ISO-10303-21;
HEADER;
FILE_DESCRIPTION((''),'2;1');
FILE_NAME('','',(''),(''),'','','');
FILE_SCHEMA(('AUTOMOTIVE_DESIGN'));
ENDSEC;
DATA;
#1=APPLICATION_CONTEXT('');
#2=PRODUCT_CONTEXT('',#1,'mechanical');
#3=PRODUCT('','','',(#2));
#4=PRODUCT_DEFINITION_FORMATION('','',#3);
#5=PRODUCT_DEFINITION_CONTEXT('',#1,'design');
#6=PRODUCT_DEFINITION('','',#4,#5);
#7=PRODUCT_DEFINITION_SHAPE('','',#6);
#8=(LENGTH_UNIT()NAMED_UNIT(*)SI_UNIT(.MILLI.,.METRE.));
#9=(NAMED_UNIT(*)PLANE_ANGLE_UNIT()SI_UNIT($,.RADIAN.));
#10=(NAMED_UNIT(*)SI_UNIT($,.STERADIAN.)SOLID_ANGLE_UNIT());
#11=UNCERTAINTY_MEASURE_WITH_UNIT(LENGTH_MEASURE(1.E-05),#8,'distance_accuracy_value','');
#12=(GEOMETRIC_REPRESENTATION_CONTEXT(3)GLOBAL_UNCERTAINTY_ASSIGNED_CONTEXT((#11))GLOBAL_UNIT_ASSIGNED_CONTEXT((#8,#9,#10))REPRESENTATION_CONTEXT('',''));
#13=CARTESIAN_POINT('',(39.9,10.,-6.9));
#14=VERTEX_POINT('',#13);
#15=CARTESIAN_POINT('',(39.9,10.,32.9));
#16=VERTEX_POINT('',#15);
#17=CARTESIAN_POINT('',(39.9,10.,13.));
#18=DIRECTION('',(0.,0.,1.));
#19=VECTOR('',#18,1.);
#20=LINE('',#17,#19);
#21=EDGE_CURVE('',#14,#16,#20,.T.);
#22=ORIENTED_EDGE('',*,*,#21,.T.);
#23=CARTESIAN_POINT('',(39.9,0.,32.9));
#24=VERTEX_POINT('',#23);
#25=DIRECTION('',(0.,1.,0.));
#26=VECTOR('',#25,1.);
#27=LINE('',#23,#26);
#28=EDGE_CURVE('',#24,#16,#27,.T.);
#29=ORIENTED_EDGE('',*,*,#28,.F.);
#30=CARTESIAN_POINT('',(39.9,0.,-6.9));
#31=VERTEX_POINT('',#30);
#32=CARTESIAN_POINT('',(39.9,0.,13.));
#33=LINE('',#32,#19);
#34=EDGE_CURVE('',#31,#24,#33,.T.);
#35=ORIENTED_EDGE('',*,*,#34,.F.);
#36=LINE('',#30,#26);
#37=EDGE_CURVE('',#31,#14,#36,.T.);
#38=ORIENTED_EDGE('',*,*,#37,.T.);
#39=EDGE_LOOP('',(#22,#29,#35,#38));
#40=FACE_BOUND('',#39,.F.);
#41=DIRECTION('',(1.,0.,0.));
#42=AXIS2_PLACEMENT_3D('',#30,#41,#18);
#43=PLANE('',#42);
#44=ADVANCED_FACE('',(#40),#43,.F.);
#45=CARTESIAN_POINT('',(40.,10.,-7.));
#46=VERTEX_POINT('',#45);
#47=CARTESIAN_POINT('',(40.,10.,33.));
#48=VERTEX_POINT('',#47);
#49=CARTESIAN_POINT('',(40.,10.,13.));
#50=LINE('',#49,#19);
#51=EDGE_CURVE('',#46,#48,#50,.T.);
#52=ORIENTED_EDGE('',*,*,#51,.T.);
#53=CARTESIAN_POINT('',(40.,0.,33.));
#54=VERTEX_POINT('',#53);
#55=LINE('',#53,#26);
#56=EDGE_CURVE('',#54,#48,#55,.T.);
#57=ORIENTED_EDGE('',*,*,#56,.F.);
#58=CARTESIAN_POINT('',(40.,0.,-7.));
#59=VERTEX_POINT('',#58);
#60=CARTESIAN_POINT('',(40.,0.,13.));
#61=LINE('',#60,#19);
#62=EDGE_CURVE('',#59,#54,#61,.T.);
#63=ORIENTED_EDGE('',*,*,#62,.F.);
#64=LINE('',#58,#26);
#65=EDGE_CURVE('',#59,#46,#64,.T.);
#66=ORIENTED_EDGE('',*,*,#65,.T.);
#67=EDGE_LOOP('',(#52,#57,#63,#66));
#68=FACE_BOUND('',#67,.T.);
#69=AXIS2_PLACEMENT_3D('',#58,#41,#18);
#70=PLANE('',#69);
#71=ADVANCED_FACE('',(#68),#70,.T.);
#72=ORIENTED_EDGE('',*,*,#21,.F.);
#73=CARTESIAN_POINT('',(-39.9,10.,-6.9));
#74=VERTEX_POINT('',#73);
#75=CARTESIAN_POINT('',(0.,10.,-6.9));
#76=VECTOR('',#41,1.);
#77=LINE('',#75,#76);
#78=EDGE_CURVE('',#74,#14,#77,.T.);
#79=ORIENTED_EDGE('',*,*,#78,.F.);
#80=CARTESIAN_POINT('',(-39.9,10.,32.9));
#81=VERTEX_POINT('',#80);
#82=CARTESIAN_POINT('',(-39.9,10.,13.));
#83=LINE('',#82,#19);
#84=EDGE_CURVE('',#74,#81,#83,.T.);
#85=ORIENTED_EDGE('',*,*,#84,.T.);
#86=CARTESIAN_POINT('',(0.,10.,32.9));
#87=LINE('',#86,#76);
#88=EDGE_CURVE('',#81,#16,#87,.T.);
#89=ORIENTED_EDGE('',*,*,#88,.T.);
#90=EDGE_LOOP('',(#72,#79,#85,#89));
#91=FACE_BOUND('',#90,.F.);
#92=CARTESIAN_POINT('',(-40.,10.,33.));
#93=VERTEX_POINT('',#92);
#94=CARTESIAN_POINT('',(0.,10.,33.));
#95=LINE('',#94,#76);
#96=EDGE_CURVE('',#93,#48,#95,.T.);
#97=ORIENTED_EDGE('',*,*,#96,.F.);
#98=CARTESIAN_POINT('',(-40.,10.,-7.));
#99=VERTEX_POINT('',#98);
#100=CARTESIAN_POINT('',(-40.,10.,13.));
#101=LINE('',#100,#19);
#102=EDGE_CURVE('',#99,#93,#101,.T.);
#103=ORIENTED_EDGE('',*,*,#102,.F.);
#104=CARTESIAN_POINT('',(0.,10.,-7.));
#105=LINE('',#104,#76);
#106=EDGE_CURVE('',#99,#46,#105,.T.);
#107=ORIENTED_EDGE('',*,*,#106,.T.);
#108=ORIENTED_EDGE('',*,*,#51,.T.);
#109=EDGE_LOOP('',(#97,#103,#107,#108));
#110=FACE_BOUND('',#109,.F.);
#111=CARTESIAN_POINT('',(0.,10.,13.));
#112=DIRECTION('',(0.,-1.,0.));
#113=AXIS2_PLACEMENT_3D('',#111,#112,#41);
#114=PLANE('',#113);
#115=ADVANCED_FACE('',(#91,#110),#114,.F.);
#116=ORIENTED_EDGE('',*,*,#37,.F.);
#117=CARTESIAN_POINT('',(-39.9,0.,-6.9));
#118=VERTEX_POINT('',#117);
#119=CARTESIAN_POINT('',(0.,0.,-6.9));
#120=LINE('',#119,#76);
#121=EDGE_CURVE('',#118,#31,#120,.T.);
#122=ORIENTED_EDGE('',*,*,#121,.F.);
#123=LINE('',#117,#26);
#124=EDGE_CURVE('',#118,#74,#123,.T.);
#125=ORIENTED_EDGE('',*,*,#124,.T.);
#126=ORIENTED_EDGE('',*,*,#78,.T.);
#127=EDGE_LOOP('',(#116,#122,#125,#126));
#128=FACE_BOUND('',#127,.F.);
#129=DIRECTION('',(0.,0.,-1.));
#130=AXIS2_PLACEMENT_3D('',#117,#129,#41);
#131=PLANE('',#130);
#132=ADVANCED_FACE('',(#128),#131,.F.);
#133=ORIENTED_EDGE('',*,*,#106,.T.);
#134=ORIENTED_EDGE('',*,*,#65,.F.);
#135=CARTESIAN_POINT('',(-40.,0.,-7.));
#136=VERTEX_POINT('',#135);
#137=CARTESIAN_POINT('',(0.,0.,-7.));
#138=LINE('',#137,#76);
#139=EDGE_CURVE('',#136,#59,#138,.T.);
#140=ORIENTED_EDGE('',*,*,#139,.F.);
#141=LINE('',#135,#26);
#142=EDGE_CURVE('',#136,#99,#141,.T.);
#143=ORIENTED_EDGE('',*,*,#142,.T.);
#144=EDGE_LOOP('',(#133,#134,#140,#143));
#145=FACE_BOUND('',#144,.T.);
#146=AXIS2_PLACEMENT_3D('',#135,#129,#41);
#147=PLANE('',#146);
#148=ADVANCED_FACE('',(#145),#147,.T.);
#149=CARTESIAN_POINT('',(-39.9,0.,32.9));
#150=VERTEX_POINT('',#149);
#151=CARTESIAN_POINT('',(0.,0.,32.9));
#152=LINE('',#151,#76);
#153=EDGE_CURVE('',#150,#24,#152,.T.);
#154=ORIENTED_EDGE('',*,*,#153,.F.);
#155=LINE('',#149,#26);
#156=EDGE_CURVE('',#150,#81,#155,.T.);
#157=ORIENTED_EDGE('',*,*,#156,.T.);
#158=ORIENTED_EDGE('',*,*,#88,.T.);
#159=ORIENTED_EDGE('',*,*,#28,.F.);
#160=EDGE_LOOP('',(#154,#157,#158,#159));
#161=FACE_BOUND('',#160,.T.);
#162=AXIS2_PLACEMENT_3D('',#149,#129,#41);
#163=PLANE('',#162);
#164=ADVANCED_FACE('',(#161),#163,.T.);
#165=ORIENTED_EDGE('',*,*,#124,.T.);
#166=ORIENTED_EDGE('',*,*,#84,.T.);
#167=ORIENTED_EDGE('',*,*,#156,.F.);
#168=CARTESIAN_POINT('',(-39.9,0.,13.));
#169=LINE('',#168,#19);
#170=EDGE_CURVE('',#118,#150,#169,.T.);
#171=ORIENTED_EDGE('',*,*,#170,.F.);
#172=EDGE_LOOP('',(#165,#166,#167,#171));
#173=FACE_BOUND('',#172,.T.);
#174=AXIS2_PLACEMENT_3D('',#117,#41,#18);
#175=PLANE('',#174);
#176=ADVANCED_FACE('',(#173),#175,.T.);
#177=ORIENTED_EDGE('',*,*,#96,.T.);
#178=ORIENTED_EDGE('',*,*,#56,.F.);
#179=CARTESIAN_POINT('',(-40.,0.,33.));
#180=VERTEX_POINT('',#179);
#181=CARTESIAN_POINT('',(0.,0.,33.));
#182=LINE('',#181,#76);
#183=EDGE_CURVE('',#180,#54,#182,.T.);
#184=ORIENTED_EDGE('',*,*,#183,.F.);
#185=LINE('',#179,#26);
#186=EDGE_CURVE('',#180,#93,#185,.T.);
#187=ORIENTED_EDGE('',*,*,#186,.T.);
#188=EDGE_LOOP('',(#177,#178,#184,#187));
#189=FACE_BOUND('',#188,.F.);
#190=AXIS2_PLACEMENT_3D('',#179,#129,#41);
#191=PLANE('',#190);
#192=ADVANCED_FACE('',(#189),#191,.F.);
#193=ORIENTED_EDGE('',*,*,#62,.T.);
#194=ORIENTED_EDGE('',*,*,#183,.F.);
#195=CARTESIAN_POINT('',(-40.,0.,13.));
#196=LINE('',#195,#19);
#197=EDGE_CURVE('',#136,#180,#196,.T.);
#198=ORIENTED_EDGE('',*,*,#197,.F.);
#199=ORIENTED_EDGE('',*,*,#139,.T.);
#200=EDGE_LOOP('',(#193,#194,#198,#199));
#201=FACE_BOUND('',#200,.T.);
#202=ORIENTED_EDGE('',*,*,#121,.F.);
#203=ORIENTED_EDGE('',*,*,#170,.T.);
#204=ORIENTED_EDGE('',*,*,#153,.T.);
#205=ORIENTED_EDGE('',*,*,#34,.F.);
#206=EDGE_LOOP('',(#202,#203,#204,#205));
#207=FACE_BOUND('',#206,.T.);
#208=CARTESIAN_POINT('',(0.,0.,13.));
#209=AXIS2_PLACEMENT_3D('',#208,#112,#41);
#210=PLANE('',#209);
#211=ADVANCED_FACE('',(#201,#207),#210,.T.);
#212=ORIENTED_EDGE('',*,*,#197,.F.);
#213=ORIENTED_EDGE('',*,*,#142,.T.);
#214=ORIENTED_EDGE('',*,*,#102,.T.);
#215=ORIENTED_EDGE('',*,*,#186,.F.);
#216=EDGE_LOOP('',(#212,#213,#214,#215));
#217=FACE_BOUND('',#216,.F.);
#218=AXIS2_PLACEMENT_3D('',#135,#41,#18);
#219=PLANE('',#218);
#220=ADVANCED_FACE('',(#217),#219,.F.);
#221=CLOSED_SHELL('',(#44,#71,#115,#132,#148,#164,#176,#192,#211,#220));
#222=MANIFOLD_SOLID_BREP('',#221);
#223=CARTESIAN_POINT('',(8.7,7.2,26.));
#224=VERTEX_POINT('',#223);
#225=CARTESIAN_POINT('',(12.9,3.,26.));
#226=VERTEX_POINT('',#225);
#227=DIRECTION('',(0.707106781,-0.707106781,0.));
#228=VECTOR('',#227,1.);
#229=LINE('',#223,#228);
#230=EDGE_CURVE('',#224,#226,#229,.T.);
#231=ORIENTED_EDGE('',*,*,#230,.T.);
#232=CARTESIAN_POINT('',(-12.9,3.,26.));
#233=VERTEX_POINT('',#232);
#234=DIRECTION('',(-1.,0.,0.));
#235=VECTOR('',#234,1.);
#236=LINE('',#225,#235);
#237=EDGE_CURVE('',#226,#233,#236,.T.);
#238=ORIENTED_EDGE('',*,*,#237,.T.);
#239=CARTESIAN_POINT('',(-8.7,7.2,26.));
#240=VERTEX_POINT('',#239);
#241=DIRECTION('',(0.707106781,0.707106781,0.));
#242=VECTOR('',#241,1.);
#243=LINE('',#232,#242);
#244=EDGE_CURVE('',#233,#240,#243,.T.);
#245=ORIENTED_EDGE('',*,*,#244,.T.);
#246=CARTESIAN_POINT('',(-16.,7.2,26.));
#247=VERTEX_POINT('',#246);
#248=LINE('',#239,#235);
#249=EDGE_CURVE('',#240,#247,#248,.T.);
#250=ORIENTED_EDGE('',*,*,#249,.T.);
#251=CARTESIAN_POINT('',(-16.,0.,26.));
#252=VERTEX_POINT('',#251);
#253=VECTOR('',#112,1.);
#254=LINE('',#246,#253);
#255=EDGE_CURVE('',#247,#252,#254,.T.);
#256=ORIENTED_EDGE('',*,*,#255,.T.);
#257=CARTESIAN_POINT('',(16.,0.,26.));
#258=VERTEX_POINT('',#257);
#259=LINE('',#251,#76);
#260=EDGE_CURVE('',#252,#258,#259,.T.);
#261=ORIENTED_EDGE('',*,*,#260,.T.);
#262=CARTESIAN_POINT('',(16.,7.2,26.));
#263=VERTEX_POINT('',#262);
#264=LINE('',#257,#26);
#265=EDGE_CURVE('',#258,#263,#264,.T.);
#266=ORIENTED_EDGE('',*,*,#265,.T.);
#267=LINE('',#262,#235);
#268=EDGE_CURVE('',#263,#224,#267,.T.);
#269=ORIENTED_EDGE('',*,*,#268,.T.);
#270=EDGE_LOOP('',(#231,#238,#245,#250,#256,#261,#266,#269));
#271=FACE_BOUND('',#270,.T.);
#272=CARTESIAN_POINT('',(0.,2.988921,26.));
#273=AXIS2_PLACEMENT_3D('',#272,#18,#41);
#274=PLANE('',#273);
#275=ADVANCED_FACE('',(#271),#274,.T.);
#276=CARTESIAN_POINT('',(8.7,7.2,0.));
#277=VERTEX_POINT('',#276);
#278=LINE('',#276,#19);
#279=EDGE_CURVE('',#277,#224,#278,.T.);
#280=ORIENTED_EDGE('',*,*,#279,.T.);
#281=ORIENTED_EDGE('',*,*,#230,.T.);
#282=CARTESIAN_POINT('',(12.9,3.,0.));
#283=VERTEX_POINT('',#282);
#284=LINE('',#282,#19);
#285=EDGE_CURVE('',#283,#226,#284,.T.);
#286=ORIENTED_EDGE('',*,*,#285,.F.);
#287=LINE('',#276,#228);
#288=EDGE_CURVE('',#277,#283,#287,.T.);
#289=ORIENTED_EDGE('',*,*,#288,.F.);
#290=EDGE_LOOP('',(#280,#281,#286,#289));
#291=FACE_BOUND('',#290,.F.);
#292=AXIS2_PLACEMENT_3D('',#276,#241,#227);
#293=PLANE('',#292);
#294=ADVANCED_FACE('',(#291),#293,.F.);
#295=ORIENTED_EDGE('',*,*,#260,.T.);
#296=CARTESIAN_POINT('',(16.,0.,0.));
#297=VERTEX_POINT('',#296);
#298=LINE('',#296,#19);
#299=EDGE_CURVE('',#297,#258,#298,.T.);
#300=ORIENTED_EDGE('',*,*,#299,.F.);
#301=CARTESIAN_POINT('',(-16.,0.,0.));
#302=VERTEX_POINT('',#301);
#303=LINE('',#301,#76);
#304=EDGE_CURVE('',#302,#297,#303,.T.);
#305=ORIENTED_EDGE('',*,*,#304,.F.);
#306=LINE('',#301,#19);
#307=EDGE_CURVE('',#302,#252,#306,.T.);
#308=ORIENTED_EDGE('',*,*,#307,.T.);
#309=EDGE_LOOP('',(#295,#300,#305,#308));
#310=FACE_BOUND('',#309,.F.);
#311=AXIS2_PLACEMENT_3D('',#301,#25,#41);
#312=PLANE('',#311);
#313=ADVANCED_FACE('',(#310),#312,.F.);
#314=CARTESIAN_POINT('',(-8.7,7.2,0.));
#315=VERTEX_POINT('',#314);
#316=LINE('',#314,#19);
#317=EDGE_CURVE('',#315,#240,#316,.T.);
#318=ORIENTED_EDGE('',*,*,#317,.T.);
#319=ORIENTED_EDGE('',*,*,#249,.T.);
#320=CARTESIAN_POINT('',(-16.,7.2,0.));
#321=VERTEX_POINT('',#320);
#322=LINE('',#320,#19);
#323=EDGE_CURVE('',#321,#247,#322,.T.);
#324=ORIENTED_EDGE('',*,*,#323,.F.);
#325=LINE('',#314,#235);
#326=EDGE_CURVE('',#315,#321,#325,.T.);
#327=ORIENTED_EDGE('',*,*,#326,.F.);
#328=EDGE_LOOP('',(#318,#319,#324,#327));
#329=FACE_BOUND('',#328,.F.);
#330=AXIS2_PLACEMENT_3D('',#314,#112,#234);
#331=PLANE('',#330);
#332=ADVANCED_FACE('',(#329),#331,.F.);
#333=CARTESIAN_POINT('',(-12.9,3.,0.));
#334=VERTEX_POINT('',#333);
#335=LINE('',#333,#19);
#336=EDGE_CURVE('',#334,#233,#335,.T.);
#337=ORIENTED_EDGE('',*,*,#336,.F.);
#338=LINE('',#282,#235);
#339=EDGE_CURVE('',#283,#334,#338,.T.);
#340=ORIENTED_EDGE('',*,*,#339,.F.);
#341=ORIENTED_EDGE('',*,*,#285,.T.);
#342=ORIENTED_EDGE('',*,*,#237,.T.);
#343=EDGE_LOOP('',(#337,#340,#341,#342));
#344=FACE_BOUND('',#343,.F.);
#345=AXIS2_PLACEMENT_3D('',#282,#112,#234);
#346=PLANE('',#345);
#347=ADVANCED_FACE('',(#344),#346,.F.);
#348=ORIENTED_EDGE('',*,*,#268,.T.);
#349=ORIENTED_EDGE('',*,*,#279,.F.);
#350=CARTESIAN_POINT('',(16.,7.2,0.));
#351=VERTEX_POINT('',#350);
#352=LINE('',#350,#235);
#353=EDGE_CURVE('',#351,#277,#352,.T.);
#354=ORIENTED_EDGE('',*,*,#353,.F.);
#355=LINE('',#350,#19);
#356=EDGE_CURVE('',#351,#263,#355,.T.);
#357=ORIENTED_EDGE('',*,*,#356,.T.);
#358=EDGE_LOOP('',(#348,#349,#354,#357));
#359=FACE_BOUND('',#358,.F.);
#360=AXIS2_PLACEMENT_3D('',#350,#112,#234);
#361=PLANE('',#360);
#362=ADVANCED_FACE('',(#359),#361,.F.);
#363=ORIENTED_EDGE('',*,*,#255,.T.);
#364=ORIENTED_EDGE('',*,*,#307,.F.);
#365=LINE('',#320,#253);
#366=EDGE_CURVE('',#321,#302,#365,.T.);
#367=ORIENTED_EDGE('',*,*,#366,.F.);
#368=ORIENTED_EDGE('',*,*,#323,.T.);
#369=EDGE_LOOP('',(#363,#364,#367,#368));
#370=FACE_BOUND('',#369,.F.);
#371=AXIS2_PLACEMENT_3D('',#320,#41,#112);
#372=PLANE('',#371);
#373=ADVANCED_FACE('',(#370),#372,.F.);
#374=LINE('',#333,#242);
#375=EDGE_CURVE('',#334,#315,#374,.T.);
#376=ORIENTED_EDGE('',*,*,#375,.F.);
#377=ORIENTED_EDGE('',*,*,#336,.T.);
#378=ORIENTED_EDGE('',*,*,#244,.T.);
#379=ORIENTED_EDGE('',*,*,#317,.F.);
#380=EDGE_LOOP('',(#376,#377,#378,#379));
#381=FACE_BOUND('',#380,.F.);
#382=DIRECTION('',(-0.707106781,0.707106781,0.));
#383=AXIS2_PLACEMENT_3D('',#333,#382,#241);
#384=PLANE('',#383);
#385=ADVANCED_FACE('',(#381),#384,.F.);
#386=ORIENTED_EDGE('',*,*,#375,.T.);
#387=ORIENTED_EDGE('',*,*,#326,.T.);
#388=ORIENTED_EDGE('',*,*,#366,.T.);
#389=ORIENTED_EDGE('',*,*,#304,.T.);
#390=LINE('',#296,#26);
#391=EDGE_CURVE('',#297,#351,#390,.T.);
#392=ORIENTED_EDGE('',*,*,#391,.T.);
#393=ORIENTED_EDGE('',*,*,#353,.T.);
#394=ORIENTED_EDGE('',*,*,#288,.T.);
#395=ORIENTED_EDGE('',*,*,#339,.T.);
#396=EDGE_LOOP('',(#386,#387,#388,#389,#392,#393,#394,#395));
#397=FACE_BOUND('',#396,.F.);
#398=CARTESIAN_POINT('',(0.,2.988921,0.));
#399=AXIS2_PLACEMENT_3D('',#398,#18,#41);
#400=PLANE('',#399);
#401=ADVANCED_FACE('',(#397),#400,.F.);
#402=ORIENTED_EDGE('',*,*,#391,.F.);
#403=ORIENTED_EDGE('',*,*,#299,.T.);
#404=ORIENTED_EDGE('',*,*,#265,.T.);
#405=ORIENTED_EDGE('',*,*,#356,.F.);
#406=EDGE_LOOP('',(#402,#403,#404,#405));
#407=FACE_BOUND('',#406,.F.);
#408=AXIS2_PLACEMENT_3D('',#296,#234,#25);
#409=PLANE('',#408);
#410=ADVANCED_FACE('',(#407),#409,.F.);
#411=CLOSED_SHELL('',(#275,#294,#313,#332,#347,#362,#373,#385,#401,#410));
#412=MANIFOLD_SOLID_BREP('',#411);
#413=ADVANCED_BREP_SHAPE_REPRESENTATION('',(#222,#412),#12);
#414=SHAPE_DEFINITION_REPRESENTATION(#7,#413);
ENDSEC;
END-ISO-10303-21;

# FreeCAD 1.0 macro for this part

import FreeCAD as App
import Part
import Sketcher

V = App.Vector

doc = App.newDocument("Part")
body = doc.addObject("PartDesign::Body", "Body")

# Sketch on XY plane
sketch1 = body.newObject("Sketcher::SketchObject", "Sketch")
sketch1.AttachmentSupport = (doc.getObject("XY_Plane"), [""])
sketch1.MapMode = "FlatFace"
sketch1.addGeometry([
    Part.LineSegment(V(-16, 7, 0), V(-16, 0, 0)),  # 0
    Part.LineSegment(V(-16, 0, 0), V(16, 0, 0)),  # 1
    Part.LineSegment(V(16, 0, 0), V(16, 7, 0)),  # 2
    Part.LineSegment(V(16, 7, 0), V(9, 7, 0)),  # 3
    Part.LineSegment(V(9, 7, 0), V(13, 3, 0)),  # 4
    Part.LineSegment(V(13, 3, 0), V(-13, 3, 0)),  # 5
    Part.LineSegment(V(-13, 3, 0), V(-9, 7, 0)),  # 6
    Part.LineSegment(V(-9, 7, 0), V(-16, 7, 0)),  # 7
], False)
sketch1.addConstraint([
    Sketcher.Constraint("Coincident", 0, 2, 1, 1),
    Sketcher.Constraint("Coincident", 1, 2, 2, 1),
    Sketcher.Constraint("Coincident", 2, 2, 3, 1),
    Sketcher.Constraint("Coincident", 3, 2, 4, 1),
    Sketcher.Constraint("Coincident", 4, 2, 5, 1),
    Sketcher.Constraint("Coincident", 5, 2, 6, 1),
    Sketcher.Constraint("Coincident", 6, 2, 7, 1),
    Sketcher.Constraint("Coincident", 7, 2, 0, 1),
    Sketcher.Constraint("Vertical", 0),
    Sketcher.Constraint("Horizontal", 1),
    Sketcher.Constraint("Vertical", 2),
    Sketcher.Constraint("Horizontal", 3),
    Sketcher.Constraint("Horizontal", 5),
    Sketcher.Constraint("Horizontal", 7),
    Sketcher.Constraint("Symmetric", 0, 2, 1, 2, -1, 1),
    Sketcher.Constraint("Symmetric", 3, 2, 6, 2, -2),
    Sketcher.Constraint("Perpendicular", 4, 6),
    Sketcher.Constraint("Equal", 4, 6),
    Sketcher.Constraint("DistanceX", 1, 1, 1, 2, 32.0),
    Sketcher.Constraint("DistanceX", 3, 2, 3, 1, 7.3),
    Sketcher.Constraint("DistanceX", 5, 2, 5, 1, 25.8),
    Sketcher.Constraint("DistanceY", 0, 2, 0, 1, 7.2),
])
pad1 = body.newObject("PartDesign::Pad", "Pad")
pad1.Profile = sketch1
pad1.Length = 26
body2 = doc.addObject("PartDesign::Body", "Body001")

# Sketch on XZ plane
sketch2 = body2.newObject("Sketcher::SketchObject", "Sketch001")
sketch2.AttachmentSupport = (doc.getObject("XZ_Plane001"), [""])
sketch2.MapMode = "FlatFace"
sketch2.addGeometry([
    Part.LineSegment(V(-40, 33, 0), V(-40, -7, 0)),  # 0
    Part.LineSegment(V(-40, -7, 0), V(40, -7, 0)),  # 1
    Part.LineSegment(V(40, -7, 0), V(40, 33, 0)),  # 2
    Part.LineSegment(V(40, 33, 0), V(-40, 33, 0)),  # 3
    Part.LineSegment(V(40, -7, 0), V(-40, -7, 0)),  # 4
    Part.LineSegment(V(-40, -7, 0), V(-40, 33, 0)),  # 5
    Part.LineSegment(V(-40, 33, 0), V(40, 33, 0)),  # 6
    Part.LineSegment(V(40, 33, 0), V(40, -7, 0)),  # 7
], False)
sketch2.addConstraint([
    Sketcher.Constraint("Coincident", 0, 2, 1, 1),
    Sketcher.Constraint("Coincident", 1, 2, 2, 1),
    Sketcher.Constraint("Coincident", 2, 2, 3, 1),
    Sketcher.Constraint("Coincident", 3, 2, 0, 1),
    Sketcher.Constraint("Coincident", 4, 2, 5, 1),
    Sketcher.Constraint("Coincident", 5, 2, 6, 1),
    Sketcher.Constraint("Coincident", 6, 2, 7, 1),
    Sketcher.Constraint("Coincident", 7, 2, 4, 1),
    Sketcher.Constraint("Vertical", 0),
    Sketcher.Constraint("Horizontal", 1),
    Sketcher.Constraint("Vertical", 2),
    Sketcher.Constraint("Horizontal", 3),
    Sketcher.Constraint("Horizontal", 4),
    Sketcher.Constraint("Vertical", 5),
    Sketcher.Constraint("Horizontal", 6),
    Sketcher.Constraint("Vertical", 7),
    Sketcher.Constraint("DistanceX", 1, 1, 1, 2, 80.0),
    Sketcher.Constraint("DistanceY", 0, 2, 0, 1, 40.0),
    Sketcher.Constraint("DistanceX", 4, 2, 4, 1, 79.8),
    Sketcher.Constraint("DistanceY", 5, 1, 5, 2, 39.8),
    Sketcher.Constraint("DistanceX", 0, 2, -1, 1, 40.0),
    Sketcher.Constraint("DistanceY", 0, 2, -1, 1, 7.0),
    Sketcher.Constraint("DistanceX", 4, 2, -1, 1, 39.9),
    Sketcher.Constraint("DistanceY", 4, 2, -1, 1, 6.9),
])
pad2 = body2.newObject("PartDesign::Pad", "Pad001")
pad2.Profile = sketch2
pad2.Length = 10
pad2.Reversed = True

doc.recompute()
